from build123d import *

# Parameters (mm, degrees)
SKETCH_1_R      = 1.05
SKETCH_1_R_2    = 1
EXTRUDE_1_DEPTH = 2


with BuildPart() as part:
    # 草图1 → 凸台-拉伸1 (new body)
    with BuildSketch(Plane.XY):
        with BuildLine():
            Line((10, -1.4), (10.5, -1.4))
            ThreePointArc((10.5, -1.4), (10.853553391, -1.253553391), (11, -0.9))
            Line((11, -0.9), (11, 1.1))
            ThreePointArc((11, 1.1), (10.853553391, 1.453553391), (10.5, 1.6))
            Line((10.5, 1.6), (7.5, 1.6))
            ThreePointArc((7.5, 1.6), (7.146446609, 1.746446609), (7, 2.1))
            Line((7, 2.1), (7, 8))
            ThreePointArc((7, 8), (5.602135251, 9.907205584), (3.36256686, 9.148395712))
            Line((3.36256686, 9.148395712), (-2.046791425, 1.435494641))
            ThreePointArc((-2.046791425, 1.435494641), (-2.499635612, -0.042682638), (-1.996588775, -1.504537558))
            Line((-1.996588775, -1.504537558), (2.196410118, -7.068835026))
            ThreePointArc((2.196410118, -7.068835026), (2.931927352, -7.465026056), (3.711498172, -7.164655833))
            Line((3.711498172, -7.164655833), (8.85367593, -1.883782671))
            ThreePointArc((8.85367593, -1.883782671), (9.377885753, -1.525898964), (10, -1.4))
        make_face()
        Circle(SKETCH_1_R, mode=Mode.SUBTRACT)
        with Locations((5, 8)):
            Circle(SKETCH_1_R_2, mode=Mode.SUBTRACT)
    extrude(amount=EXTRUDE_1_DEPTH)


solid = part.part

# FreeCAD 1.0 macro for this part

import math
import FreeCAD as App
import Part
import Sketcher
from FreeCAD import Vector
Q = App.Units.Quantity

doc = App.newDocument("Part")
body = doc.addObject("PartDesign::Body", "Body")

sketch1 = doc.addObject("Sketcher::SketchObject", "Sketch")
body.addObject(sketch1)
sketch1.AttachmentSupport = (doc.XY_Plane, [""])
sketch1.MapMode = "FlatFace"
sketch1.addGeometry([
    Part.LineSegment(Vector(10, -1.4, 0), Vector(10.5, -1.4, 0)),
    Part.ArcOfCircle(Part.Circle(Vector(10.5, -0.9, 0), Vector(0, 0, 1), 0.5), math.radians(-90), math.radians(0)),
    Part.LineSegment(Vector(11, -0.9, 0), Vector(11, 1.1, 0)),
    Part.ArcOfCircle(Part.Circle(Vector(10.5, 1.1, 0), Vector(0, 0, 1), 0.5), math.radians(0), math.radians(90)),
    Part.LineSegment(Vector(10.5, 1.6, 0), Vector(7.5, 1.6, 0)),
    Part.ArcOfCircle(Part.Circle(Vector(7.5, 2.1, 0), Vector(0, 0, 1), 0.5), math.radians(180), math.radians(270)),
    Part.LineSegment(Vector(7, 2.1, 0), Vector(7, 8, 0)),
    Part.ArcOfCircle(Part.Circle(Vector(5, 8, 0), Vector(0, 0, 1), 2), math.radians(0), math.radians(145)),
    Part.LineSegment(Vector(3.36, 9.15, 0), Vector(-2.05, 1.44, 0)),
    Part.ArcOfCircle(Part.Circle(Vector(0, 0, 0), Vector(0, 0, 1), 2.5), math.radians(145), math.radians(217)),
    Part.LineSegment(Vector(-2, -1.5, 0), Vector(2.2, -7.07, 0)),
    Part.ArcOfCircle(Part.Circle(Vector(3, -6.47, 0), Vector(0, 0, 1), 1), math.radians(-143), math.radians(-44)),
    Part.LineSegment(Vector(3.71, -7.16, 0), Vector(8.85, -1.88, 0)),
    Part.ArcOfCircle(Part.Circle(Vector(10, -3, 0), Vector(0, 0, 1), 1.6), math.radians(90), math.radians(136)),
    Part.Circle(Vector(0, 0, 0), Vector(0, 0, 1), 1.05),
    Part.Circle(Vector(5, 8, 0), Vector(0, 0, 1), 1),
], False)
sketch1.addConstraint([
    Sketcher.Constraint("Tangent", 0, 2, 1, 1),
    Sketcher.Constraint("Tangent", 1, 2, 2, 1),
    Sketcher.Constraint("Tangent", 2, 2, 3, 1),
    Sketcher.Constraint("Tangent", 3, 2, 4, 1),
    Sketcher.Constraint("Tangent", 4, 2, 5, 2),
    Sketcher.Constraint("Tangent", 5, 1, 6, 1),
    Sketcher.Constraint("Tangent", 6, 2, 7, 1),
    Sketcher.Constraint("Tangent", 7, 2, 8, 1),
    Sketcher.Constraint("Tangent", 8, 2, 9, 1),
    Sketcher.Constraint("Tangent", 9, 2, 10, 1),
    Sketcher.Constraint("Tangent", 10, 2, 11, 1),
    Sketcher.Constraint("Tangent", 11, 2, 12, 1),
    Sketcher.Constraint("Tangent", 12, 2, 13, 2),
    Sketcher.Constraint("Tangent", 13, 1, 0, 1),
    Sketcher.Constraint("Horizontal", 0),
    Sketcher.Constraint("Vertical", 2),
    Sketcher.Constraint("Horizontal", 4),
    Sketcher.Constraint("Vertical", 6),
    Sketcher.Constraint("Coincident", 9, 3, -1, 1),
    Sketcher.Constraint("Coincident", 14, 3, -1, 1),
    Sketcher.Constraint("Coincident", 15, 3, 7, 3),
    Sketcher.Constraint("Equal", 1, 3),
    Sketcher.Constraint("Equal", 3, 5),
    Sketcher.Constraint("Equal", 11, 15),
    Sketcher.Constraint("Diameter", 15, 2.0),
    Sketcher.Constraint("Radius", 7, 2.0),
    Sketcher.Constraint("Diameter", 14, 2.1),
    Sketcher.Constraint("Radius", 1, 0.5),
    Sketcher.Constraint("Radius", 9, 2.5),
    Sketcher.Constraint("Radius", 13, 1.6),
    Sketcher.Constraint("DistanceX", 4, 2, 4, 1, 3.0),
    Sketcher.Constraint("DistanceY", 2, 1, 2, 2, 2.0),
    Sketcher.Constraint("Angle", 10, Q("-53 deg")),
    Sketcher.Constraint("DistanceX", 0, 1, 0, 2, 0.5),
    Sketcher.Constraint("DistanceY", 6, 1, 6, 2, 5.9),
    Sketcher.Constraint("DistanceX", -1, 1, 7, 3, 5.0),
    Sketcher.Constraint("DistanceY", -1, 1, 7, 3, 8.0),
    Sketcher.Constraint("DistanceX", 9, 2, 10, 2, 4.192999),
])
pad1 = doc.addObject("PartDesign::Pad", "Pad")
body.addObject(pad1)
pad1.Profile = sketch1
pad1.Length = 2

doc.recompute()
